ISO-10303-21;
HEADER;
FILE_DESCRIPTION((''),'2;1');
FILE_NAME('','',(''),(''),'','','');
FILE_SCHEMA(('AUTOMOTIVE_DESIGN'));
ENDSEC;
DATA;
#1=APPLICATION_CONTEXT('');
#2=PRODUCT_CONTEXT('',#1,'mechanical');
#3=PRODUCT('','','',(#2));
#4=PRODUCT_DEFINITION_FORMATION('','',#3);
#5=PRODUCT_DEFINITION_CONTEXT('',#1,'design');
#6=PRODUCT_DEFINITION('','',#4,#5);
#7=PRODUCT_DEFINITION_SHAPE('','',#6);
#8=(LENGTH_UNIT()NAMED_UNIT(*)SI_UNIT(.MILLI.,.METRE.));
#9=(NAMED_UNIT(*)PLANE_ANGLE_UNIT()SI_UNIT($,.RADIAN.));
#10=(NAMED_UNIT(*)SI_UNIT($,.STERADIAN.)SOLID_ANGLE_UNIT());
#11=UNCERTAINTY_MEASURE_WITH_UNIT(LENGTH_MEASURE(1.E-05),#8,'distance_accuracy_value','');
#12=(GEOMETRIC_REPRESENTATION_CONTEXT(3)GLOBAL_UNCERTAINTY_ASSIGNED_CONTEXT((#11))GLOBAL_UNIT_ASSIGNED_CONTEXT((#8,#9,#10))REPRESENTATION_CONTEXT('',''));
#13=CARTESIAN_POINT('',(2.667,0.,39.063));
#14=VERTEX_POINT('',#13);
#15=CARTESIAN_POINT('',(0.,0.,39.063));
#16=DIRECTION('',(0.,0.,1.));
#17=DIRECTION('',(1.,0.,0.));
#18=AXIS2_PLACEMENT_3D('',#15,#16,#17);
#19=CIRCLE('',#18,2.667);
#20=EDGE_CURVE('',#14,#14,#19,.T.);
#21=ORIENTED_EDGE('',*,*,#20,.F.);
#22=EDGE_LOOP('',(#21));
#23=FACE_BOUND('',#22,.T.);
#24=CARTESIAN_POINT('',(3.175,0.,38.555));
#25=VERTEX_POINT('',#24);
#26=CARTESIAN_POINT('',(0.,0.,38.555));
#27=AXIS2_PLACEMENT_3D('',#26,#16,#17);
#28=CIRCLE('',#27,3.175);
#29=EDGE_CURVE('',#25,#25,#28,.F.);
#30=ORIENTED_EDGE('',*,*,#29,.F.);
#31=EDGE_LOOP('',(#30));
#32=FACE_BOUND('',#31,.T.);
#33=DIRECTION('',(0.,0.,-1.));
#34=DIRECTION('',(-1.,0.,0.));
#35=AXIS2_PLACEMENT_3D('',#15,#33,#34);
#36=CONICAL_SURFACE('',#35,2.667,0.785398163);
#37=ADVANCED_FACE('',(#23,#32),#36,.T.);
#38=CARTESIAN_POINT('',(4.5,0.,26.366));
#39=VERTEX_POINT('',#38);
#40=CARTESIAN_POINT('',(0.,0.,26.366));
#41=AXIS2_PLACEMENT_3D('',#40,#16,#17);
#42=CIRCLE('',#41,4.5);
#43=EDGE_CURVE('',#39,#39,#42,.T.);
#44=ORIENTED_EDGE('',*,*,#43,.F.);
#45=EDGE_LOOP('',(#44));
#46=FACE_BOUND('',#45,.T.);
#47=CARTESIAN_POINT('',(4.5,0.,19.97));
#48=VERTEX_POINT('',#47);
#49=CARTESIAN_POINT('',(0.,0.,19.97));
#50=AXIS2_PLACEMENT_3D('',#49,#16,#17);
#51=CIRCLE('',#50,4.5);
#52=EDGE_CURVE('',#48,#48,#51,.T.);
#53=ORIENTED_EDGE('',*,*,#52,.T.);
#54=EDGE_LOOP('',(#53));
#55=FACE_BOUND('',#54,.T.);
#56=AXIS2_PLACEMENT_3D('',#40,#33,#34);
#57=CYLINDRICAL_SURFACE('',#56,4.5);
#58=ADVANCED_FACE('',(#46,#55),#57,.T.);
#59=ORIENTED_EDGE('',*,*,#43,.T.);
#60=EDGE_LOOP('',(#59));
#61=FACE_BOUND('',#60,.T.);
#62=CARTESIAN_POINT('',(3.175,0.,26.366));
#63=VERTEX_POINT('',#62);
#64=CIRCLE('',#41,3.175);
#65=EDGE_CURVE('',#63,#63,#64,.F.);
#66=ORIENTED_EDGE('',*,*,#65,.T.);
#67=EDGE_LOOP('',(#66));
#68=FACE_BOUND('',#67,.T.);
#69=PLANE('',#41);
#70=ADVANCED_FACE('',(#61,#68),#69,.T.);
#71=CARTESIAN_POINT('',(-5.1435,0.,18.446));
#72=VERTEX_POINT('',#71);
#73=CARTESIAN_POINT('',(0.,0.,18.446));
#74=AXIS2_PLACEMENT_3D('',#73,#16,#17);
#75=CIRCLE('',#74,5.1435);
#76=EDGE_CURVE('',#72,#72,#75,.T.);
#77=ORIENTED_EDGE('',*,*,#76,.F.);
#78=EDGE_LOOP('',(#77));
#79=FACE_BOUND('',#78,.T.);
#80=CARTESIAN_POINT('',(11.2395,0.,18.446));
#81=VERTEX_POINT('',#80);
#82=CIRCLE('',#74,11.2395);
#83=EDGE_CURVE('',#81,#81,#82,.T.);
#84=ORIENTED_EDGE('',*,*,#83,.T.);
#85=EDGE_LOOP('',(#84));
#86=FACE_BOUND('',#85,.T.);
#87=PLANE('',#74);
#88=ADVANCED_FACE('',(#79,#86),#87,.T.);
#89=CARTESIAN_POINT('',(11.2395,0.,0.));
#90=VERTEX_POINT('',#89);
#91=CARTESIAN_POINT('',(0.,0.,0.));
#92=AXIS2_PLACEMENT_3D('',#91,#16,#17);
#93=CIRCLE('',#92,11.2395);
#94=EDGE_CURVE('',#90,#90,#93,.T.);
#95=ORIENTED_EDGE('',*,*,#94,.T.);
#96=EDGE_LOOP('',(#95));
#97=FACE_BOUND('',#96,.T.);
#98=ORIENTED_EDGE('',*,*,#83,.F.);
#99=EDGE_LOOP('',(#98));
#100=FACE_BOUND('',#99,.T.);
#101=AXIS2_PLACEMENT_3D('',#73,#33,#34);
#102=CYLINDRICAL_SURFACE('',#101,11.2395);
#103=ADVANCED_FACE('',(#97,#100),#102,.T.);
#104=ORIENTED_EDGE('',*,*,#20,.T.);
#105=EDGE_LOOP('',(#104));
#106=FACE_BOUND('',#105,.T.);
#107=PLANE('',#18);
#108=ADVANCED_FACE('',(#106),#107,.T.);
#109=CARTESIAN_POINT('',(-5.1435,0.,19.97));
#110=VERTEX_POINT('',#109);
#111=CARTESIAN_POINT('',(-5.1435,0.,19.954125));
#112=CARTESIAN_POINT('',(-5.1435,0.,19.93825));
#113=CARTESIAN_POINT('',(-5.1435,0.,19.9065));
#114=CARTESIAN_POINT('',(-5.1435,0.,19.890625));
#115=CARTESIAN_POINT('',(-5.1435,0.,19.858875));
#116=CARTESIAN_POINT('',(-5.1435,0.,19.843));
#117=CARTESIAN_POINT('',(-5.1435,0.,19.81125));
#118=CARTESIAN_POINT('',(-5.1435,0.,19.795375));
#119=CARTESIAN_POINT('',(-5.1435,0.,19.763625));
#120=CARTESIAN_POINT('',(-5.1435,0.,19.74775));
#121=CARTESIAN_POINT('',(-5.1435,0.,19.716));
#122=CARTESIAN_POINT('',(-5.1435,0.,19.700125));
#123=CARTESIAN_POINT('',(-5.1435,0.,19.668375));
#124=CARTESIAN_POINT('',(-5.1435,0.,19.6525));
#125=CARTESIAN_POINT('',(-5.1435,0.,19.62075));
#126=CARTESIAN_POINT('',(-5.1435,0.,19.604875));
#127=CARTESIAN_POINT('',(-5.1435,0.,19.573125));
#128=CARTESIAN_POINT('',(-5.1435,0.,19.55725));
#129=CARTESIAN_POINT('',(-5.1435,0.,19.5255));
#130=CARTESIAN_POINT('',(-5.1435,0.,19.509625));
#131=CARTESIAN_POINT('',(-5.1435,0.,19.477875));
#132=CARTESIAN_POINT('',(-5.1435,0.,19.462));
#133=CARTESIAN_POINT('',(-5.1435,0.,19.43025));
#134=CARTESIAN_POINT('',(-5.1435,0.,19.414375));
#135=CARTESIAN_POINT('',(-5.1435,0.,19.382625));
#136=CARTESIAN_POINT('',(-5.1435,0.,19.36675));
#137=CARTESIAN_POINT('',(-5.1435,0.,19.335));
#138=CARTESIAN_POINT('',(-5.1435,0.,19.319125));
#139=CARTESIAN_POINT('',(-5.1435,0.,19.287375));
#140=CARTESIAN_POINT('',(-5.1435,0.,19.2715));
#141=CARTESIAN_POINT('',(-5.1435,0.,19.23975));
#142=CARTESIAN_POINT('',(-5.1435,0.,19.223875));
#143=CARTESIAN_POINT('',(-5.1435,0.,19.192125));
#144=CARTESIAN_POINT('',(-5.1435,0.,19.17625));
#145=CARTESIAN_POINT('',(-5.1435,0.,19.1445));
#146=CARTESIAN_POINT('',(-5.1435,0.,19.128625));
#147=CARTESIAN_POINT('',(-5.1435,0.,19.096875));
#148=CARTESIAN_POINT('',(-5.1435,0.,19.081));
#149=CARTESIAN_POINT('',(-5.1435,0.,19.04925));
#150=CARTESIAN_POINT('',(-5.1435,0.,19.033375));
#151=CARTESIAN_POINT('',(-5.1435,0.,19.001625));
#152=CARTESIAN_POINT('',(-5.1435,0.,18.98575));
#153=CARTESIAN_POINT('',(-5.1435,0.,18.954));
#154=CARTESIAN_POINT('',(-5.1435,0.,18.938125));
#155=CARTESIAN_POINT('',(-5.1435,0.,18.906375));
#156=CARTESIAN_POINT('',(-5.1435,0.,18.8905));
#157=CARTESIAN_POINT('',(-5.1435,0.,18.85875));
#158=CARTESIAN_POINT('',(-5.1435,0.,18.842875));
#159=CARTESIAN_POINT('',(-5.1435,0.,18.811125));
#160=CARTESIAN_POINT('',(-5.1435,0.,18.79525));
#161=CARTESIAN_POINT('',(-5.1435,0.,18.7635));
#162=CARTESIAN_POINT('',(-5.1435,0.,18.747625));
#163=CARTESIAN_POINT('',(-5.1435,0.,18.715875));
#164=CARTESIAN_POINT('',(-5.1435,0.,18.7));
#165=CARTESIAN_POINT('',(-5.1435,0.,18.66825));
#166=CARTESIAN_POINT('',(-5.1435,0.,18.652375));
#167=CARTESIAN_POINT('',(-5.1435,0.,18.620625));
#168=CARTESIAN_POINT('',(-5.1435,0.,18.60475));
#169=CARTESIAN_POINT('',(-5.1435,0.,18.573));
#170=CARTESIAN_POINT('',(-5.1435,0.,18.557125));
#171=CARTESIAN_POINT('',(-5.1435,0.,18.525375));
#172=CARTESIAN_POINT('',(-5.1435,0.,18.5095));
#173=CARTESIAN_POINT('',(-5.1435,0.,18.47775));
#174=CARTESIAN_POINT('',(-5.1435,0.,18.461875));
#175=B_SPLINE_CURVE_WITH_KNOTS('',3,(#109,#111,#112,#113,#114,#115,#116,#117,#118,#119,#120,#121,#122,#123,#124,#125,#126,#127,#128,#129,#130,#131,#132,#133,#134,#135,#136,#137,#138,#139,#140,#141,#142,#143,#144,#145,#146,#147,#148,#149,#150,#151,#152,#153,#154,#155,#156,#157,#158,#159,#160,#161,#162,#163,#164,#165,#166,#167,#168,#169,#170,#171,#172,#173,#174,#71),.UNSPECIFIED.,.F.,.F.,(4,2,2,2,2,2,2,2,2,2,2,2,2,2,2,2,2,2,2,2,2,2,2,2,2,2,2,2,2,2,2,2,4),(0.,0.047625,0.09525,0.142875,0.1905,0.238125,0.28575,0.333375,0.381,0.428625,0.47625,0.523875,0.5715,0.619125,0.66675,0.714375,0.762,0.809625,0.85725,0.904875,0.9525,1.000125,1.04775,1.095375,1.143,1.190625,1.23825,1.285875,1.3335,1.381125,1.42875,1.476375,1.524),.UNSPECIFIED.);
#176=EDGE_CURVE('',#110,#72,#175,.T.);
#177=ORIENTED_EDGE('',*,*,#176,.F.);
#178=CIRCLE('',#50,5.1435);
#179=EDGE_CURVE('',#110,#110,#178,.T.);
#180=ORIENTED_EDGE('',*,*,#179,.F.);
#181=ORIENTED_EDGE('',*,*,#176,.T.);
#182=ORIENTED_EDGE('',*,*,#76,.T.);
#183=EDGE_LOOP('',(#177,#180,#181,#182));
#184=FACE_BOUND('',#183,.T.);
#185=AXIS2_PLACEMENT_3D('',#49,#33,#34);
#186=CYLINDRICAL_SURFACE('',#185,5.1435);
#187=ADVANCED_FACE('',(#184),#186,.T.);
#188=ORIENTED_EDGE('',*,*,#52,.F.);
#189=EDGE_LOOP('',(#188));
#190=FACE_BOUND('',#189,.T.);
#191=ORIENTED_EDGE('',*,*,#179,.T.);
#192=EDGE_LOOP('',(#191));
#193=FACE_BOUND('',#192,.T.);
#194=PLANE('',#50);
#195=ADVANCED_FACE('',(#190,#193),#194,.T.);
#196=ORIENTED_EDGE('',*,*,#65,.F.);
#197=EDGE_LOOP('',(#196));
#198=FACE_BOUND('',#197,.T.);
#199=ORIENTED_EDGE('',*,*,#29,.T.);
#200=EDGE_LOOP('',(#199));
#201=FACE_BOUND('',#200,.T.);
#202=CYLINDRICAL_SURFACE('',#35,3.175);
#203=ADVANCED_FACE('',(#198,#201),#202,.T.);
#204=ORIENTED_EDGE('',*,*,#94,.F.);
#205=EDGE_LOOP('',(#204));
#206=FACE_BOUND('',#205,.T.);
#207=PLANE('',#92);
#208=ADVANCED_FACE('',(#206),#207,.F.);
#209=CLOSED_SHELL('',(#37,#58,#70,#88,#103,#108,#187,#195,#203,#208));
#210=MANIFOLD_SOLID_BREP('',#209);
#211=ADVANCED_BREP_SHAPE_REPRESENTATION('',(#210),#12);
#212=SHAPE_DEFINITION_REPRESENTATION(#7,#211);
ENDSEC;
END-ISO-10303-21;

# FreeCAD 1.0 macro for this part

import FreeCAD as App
import Part
import Sketcher
from FreeCAD import Vector
Q = App.Units.Quantity


def edges_at(feature, points):
    """Names of the edges that pass closest to the given points."""
    edges = feature.Shape.Edges
    near = lambda p: min(range(len(edges)), key=lambda i: edges[i].distToShape(Part.Vertex(*p))[0])
    return sorted({f"Edge{near(p) + 1}" for p in points})

doc = App.newDocument("Part")
body = doc.addObject("PartDesign::Body", "Body")

# Sketch on XY plane
sketch1 = body.newObject("Sketcher::SketchObject", "Sketch")
sketch1.AttachmentSupport = (doc.getObject("XY_Plane"), [""])
sketch1.MapMode = "FlatFace"
sketch1.addGeometry(Part.Circle(Vector(0, 0, 0), Vector(0, 0, 1), 11), False)
sketch1.addConstraint([
    Sketcher.Constraint("Coincident", 0, 3, -1, 1),
    Sketcher.Constraint("Diameter", 0, Q("0.885 in")),
])
pad1 = body.newObject("PartDesign::Pad", "Pad")
pad1.Profile = sketch1
pad1.Length = 18.446

# Sketch on XY plane
sketch2 = body.newObject("Sketcher::SketchObject", "Sketch001")
sketch2.AttachmentSupport = (doc.getObject("XY_Plane"), [""])
sketch2.MapMode = "FlatFace"
sketch2.AttachmentOffset = App.Placement(Vector(0, 0, 18.446), App.Rotation())
sketch2.addGeometry(Part.Circle(Vector(0, 0, 0), Vector(0, 0, 1), 5), False)
sketch2.addConstraint([
    Sketcher.Constraint("Coincident", 0, 3, -1, 1),
    Sketcher.Constraint("Diameter", 0, Q("0.405 in")),
])
pad2 = body.newObject("PartDesign::Pad", "Pad001")
pad2.Profile = sketch2
pad2.Length = Q("0.06 in")

# Sketch on XY plane
sketch3 = body.newObject("Sketcher::SketchObject", "Sketch002")
sketch3.AttachmentSupport = (doc.getObject("XY_Plane"), [""])
sketch3.MapMode = "FlatFace"
sketch3.AttachmentOffset = App.Placement(Vector(0, 0, 19.97), App.Rotation())
sketch3.addGeometry(Part.Circle(Vector(0, 0, 0), Vector(0, 0, 1), 4.5), False)
sketch3.addConstraint([
    Sketcher.Constraint("Coincident", 0, 3, -1, 1),
    Sketcher.Constraint("Diameter", 0, Q("9 mm")),
])
pad3 = body.newObject("PartDesign::Pad", "Pad002")
pad3.Profile = sketch3
pad3.Length = 6.396

# Sketch on XY plane
sketch4 = body.newObject("Sketcher::SketchObject", "Sketch003")
sketch4.AttachmentSupport = (doc.getObject("XY_Plane"), [""])
sketch4.MapMode = "FlatFace"
sketch4.AttachmentOffset = App.Placement(Vector(0, 0, 18.446), App.Rotation())
sketch4.addGeometry(Part.Circle(Vector(0, 0, 0), Vector(0, 0, 1), 3.2), False)
sketch4.addConstraint([
    Sketcher.Constraint("Coincident", 0, 3, -1, 1),
    Sketcher.Constraint("Diameter", 0, Q("0.25 in")),
])
pad4 = body.newObject("PartDesign::Pad", "Pad003")
pad4.Profile = sketch4
pad4.Length = 20.617
doc.recompute()

chamfer = body.newObject("PartDesign::Chamfer", "Chamfer")
chamfer.Base = (pad4, edges_at(pad4, [(-3.175, 0, 39.063)]))
chamfer.Size = Q("0.02 in")

doc.recompute()
